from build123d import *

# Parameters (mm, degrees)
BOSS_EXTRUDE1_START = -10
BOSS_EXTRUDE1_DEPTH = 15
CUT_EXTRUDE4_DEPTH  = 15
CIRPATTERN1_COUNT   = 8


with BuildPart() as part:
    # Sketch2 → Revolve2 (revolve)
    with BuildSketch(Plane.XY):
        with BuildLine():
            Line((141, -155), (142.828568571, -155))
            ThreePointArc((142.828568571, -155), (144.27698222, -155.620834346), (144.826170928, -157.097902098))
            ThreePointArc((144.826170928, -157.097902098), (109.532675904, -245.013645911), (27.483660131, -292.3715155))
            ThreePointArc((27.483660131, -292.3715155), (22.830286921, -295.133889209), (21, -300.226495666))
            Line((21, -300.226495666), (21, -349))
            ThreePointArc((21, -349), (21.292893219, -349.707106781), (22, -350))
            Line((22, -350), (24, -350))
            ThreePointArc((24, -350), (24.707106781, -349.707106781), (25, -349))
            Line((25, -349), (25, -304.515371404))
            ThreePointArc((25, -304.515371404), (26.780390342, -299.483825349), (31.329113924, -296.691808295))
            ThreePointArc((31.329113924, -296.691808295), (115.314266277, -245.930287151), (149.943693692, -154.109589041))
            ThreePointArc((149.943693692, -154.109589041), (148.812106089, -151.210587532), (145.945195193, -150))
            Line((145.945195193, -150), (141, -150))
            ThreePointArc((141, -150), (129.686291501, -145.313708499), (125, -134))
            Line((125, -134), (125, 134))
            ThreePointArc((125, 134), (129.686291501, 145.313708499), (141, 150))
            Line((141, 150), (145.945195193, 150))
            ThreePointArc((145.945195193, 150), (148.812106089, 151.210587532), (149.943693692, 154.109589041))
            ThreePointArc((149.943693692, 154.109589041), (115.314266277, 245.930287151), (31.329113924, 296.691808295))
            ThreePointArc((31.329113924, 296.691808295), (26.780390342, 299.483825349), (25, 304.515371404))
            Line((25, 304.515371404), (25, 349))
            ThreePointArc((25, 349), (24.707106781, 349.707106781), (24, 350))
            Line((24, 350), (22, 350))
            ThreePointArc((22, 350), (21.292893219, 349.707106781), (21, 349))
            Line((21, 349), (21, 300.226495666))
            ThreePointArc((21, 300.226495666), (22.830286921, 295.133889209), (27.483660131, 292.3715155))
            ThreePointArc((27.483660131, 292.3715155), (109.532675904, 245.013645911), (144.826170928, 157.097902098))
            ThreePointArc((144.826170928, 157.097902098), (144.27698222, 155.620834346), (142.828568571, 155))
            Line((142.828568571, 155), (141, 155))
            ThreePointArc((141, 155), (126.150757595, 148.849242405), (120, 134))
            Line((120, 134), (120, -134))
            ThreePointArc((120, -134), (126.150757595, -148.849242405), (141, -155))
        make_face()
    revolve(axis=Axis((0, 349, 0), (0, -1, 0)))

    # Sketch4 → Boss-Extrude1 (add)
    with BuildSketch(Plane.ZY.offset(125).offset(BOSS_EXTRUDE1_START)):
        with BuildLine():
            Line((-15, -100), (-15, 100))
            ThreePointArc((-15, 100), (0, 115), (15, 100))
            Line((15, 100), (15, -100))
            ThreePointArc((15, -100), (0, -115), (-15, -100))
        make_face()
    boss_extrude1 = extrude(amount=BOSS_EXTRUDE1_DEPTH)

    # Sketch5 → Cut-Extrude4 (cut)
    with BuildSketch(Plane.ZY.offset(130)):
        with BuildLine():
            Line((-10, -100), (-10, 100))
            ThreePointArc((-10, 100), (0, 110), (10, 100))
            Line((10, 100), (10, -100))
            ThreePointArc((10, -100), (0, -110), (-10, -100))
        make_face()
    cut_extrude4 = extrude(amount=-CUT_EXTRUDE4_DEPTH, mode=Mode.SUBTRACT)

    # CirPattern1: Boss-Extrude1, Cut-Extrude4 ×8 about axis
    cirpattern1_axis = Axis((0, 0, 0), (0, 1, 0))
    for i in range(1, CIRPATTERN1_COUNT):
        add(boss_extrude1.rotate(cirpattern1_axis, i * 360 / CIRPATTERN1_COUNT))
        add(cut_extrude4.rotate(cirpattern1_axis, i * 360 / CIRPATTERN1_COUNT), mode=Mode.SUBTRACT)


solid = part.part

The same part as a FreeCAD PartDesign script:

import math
import FreeCAD as App
import Part
import Sketcher
from FreeCAD import Vector

doc = App.newDocument("Part")
body = doc.addObject("PartDesign::Body", "Body")

# Sketch on XY plane
sketch1 = doc.addObject("Sketcher::SketchObject", "Sketch")
body.addObject(sketch1)
sketch1.AttachmentSupport = (doc.XY_Plane, [""])
sketch1.MapMode = "FlatFace"
sketch1.addGeometry([
    Part.LineSegment(Vector(141, -155, 0), Vector(142.8, -155, 0)),  # 0
    Part.ArcOfCircle(Part.Circle(Vector(142.8, -157, 0), Vector(0, 0, 1), 2), math.radians(-3), math.radians(90)),  # 1
    Part.ArcOfCircle(Part.Circle(Vector(0, -150, 0), Vector(0, 0, 1), 145), math.radians(-79), math.radians(-3)),  # 2
    Part.ArcOfCircle(Part.Circle(Vector(29, -300.2, 0), Vector(0, 0, 1), 8), math.radians(101), math.radians(180)),  # 3
    Part.LineSegment(Vector(21, -300.2, 0), Vector(21, -349, 0)),  # 4
    Part.ArcOfCircle(Part.Circle(Vector(22, -349, 0), Vector(0, 0, 1), 1), math.radians(-180), math.radians(-90)),  # 5
    Part.LineSegment(Vector(22, -350, 0), Vector(24, -350, 0)),  # 6
    Part.ArcOfCircle(Part.Circle(Vector(24, -349, 0), Vector(0, 0, 1), 1), math.radians(-90), math.radians(0)),  # 7
    Part.LineSegment(Vector(25, -349, 0), Vector(25, -304.5, 0)),  # 8
    Part.ArcOfCircle(Part.Circle(Vector(33, -304.5, 0), Vector(0, 0, 1), 8), math.radians(102), math.radians(180)),  # 9
    Part.ArcOfCircle(Part.Circle(Vector(0, -150, 0), Vector(0, 0, 1), 150), math.radians(-78), math.radians(-2)),  # 10
    Part.ArcOfCircle(Part.Circle(Vector(145.9, -154, 0), Vector(0, 0, 1), 4), math.radians(-2), math.radians(90)),  # 11
    Part.LineSegment(Vector(145.9, -150, 0), Vector(141, -150, 0)),  # 12
    Part.ArcOfCircle(Part.Circle(Vector(141, -134, 0), Vector(0, 0, 1), 16), math.radians(180), math.radians(270)),  # 13
    Part.LineSegment(Vector(125, -134, 0), Vector(125, 134, 0)),  # 14
    Part.ArcOfCircle(Part.Circle(Vector(141, 134, 0), Vector(0, 0, 1), 16), math.radians(90), math.radians(180)),  # 15
    Part.LineSegment(Vector(141, 150, 0), Vector(145.9, 150, 0)),  # 16
    Part.ArcOfCircle(Part.Circle(Vector(145.9, 154, 0), Vector(0, 0, 1), 4), math.radians(-90), math.radians(2)),  # 17
    Part.ArcOfCircle(Part.Circle(Vector(0, 150, 0), Vector(0, 0, 1), 150), math.radians(2), math.radians(78)),  # 18
    Part.ArcOfCircle(Part.Circle(Vector(33, 304.5, 0), Vector(0, 0, 1), 8), math.radians(180), math.radians(258)),  # 19
    Part.LineSegment(Vector(25, 304.5, 0), Vector(25, 349, 0)),  # 20
    Part.ArcOfCircle(Part.Circle(Vector(24, 349, 0), Vector(0, 0, 1), 1), math.radians(0), math.radians(90)),  # 21
    Part.LineSegment(Vector(24, 350, 0), Vector(22, 350, 0)),  # 22
    Part.ArcOfCircle(Part.Circle(Vector(22, 349, 0), Vector(0, 0, 1), 1), math.radians(90), math.radians(180)),  # 23
    Part.LineSegment(Vector(21, 349, 0), Vector(21, 300.2, 0)),  # 24
    Part.ArcOfCircle(Part.Circle(Vector(29, 300.2, 0), Vector(0, 0, 1), 8), math.radians(180), math.radians(259)),  # 25
    Part.ArcOfCircle(Part.Circle(Vector(0, 150, 0), Vector(0, 0, 1), 145), math.radians(3), math.radians(79)),  # 26
    Part.ArcOfCircle(Part.Circle(Vector(142.8, 157, 0), Vector(0, 0, 1), 2), math.radians(-90), math.radians(3)),  # 27
    Part.LineSegment(Vector(142.8, 155, 0), Vector(141, 155, 0)),  # 28
    Part.ArcOfCircle(Part.Circle(Vector(141, 134, 0), Vector(0, 0, 1), 21), math.radians(90), math.radians(180)),  # 29
    Part.LineSegment(Vector(120, 134, 0), Vector(120, -134, 0)),  # 30
    Part.ArcOfCircle(Part.Circle(Vector(141, -134, 0), Vector(0, 0, 1), 21), math.radians(180), math.radians(270)),  # 31
], False)
sketch1.addConstraint([
    Sketcher.Constraint("Tangent", 0, 2, 1, 2),
    Sketcher.Constraint("Tangent", 1, 1, 2, 2),
    Sketcher.Constraint("Tangent", 2, 1, 3, 1),
    Sketcher.Constraint("Tangent", 3, 2, 4, 1),
    Sketcher.Constraint("Tangent", 4, 2, 5, 1),
    Sketcher.Constraint("Tangent", 5, 2, 6, 1),
    Sketcher.Constraint("Tangent", 6, 2, 7, 1),
    Sketcher.Constraint("Tangent", 7, 2, 8, 1),
    Sketcher.Constraint("Tangent", 8, 2, 9, 2),
    Sketcher.Constraint("Tangent", 9, 1, 10, 1),
    Sketcher.Constraint("Tangent", 10, 2, 11, 1),
    Sketcher.Constraint("Tangent", 11, 2, 12, 1),
    Sketcher.Constraint("Tangent", 12, 2, 13, 2),
    Sketcher.Constraint("Tangent", 13, 1, 14, 1),
    Sketcher.Constraint("Tangent", 14, 2, 15, 2),
    Sketcher.Constraint("Tangent", 15, 1, 16, 1),
    Sketcher.Constraint("Tangent", 16, 2, 17, 1),
    Sketcher.Constraint("Tangent", 17, 2, 18, 1),
    Sketcher.Constraint("Tangent", 18, 2, 19, 2),
    Sketcher.Constraint("Tangent", 19, 1, 20, 1),
    Sketcher.Constraint("Tangent", 20, 2, 21, 1),
    Sketcher.Constraint("Tangent", 21, 2, 22, 1),
    Sketcher.Constraint("Tangent", 22, 2, 23, 1),
    Sketcher.Constraint("Tangent", 23, 2, 24, 1),
    Sketcher.Constraint("Tangent", 24, 2, 25, 1),
    Sketcher.Constraint("Tangent", 25, 2, 26, 2),
    Sketcher.Constraint("Tangent", 26, 1, 27, 2),
    Sketcher.Constraint("Tangent", 27, 1, 28, 1),
    Sketcher.Constraint("Tangent", 28, 2, 29, 1),
    Sketcher.Constraint("Tangent", 29, 2, 30, 1),
    Sketcher.Constraint("Tangent", 30, 2, 31, 1),
    Sketcher.Constraint("Tangent", 31, 2, 0, 1),
    Sketcher.Constraint("Horizontal", 0),
    Sketcher.Constraint("Vertical", 4),
    Sketcher.Constraint("Horizontal", 6),
    Sketcher.Constraint("Vertical", 8),
    Sketcher.Constraint("Horizontal", 12),
    Sketcher.Constraint("Vertical", 14),
    Sketcher.Constraint("Horizontal", 16),
    Sketcher.Constraint("Vertical", 20),
    Sketcher.Constraint("Horizontal", 22),
    Sketcher.Constraint("Vertical", 24),
    Sketcher.Constraint("Horizontal", 28),
    Sketcher.Constraint("Vertical", 30),
    Sketcher.Constraint("Coincident", 10, 3, 2, 3),
    Sketcher.Constraint("Coincident", 26, 3, 18, 3),
    Sketcher.Constraint("Coincident", 29, 3, 15, 3),
    Sketcher.Constraint("Coincident", 31, 3, 13, 3),
    Sketcher.Constraint("Equal", 5, 7),
    Sketcher.Constraint("Equal", 3, 9),
    Sketcher.Constraint("Equal", 13, 15),
    Sketcher.Constraint("Equal", 11, 17),
    Sketcher.Constraint("Equal", 10, 18),
    Sketcher.Constraint("Equal", 9, 19),
    Sketcher.Constraint("Equal", 7, 21),
    Sketcher.Constraint("Equal", 21, 23),
    Sketcher.Constraint("Equal", 19, 25),
    Sketcher.Constraint("Equal", 2, 26),
    Sketcher.Constraint("Equal", 1, 27),
    Sketcher.Constraint("Symmetric", 2, 3, 18, 3, -1, 1),
    Sketcher.Constraint("Symmetric", 11, 3, 17, 3, -1),
    Sketcher.Constraint("Symmetric", 7, 3, 21, 3, -1),
    Sketcher.Constraint("Horizontal", 10, 3, 11, 2),
    Sketcher.Constraint("Vertical", 5, 3, 23, 3),
    Sketcher.Constraint("Radius", 1, 2.0),
    Sketcher.Constraint("Radius", 2, 145.0),
    Sketcher.Constraint("Radius", 3, 8.0),
    Sketcher.Constraint("Radius", 5, 1.0),
    Sketcher.Constraint("Radius", 10, 150.0),
    Sketcher.Constraint("Radius", 11, 4.0),
    Sketcher.Constraint("Radius", 13, 16.0),
    Sketcher.Constraint("Radius", 29, 21.0),
    Sketcher.Constraint("DistanceX", 6, 1, 6, 2, 2.0),
    Sketcher.Constraint("DistanceY", 14, 1, 14, 2, 268.0),
    Sketcher.Constraint("DistanceX", -1, 1, 3, 3, 29.0),
    Sketcher.Constraint("DistanceY", 5, 3, -1, 1, 349.0),
    Sketcher.Constraint("DistanceX", -1, 1, 13, 3, 141.0),
])
revolution = doc.addObject("PartDesign::Revolution", "Revolution")
body.addObject(revolution)
revolution.Profile = sketch1
revolution.ReferenceAxis = (sketch1, ["V_Axis"])
revolution.Angle = 360

# Sketch on YZ plane
sketch2 = doc.addObject("Sketcher::SketchObject", "Sketch001")
body.addObject(sketch2)
sketch2.AttachmentSupport = (doc.YZ_Plane, [""])
sketch2.MapMode = "FlatFace"
sketch2.AttachmentOffset = App.Placement(Vector(0, 0, -115), App.Rotation())
sketch2.addGeometry([
    Part.LineSegment(Vector(100, -15, 0), Vector(-100, -15, 0)),
    Part.ArcOfCircle(Part.Circle(Vector(-100, 0, 0), Vector(0, 0, 1), 15), math.radians(90), math.radians(270)),
    Part.LineSegment(Vector(-100, 15, 0), Vector(100, 15, 0)),
    Part.ArcOfCircle(Part.Circle(Vector(100, 0, 0), Vector(0, 0, 1), 15), math.radians(-90), math.radians(90)),
], False)
sketch2.addConstraint([
    Sketcher.Constraint("Tangent", 0, 2, 1, 2),
    Sketcher.Constraint("Tangent", 1, 1, 2, 1),
    Sketcher.Constraint("Tangent", 2, 2, 3, 2),
    Sketcher.Constraint("Tangent", 3, 1, 0, 1),
    Sketcher.Constraint("Horizontal", 0),
    Sketcher.Constraint("Horizontal", 2),
    Sketcher.Constraint("Symmetric", 1, 3, 3, 3, -1, 1),
    Sketcher.Constraint("Radius", 1, 15.0),
    Sketcher.Constraint("DistanceX", 0, 2, 0, 1, 200.0),
])
pad1 = doc.addObject("PartDesign::Pad", "Pad")
body.addObject(pad1)
pad1.Profile = sketch2
pad1.Length = 15
pad1.Reversed = True

# Sketch on YZ plane
sketch3 = doc.addObject("Sketcher::SketchObject", "Sketch002")
body.addObject(sketch3)
sketch3.AttachmentSupport = (doc.YZ_Plane, [""])
sketch3.MapMode = "FlatFace"
sketch3.AttachmentOffset = App.Placement(Vector(0, 0, -130), App.Rotation())
sketch3.addGeometry([
    Part.LineSegment(Vector(100, -10, 0), Vector(-100, -10, 0)),
    Part.ArcOfCircle(Part.Circle(Vector(-100, 0, 0), Vector(0, 0, 1), 10), math.radians(90), math.radians(270)),
    Part.LineSegment(Vector(-100, 10, 0), Vector(100, 10, 0)),
    Part.ArcOfCircle(Part.Circle(Vector(100, 0, 0), Vector(0, 0, 1), 10), math.radians(-90), math.radians(90)),
], False)
sketch3.addConstraint([
    Sketcher.Constraint("Tangent", 0, 2, 1, 2),
    Sketcher.Constraint("Tangent", 1, 1, 2, 1),
    Sketcher.Constraint("Tangent", 2, 2, 3, 2),
    Sketcher.Constraint("Tangent", 3, 1, 0, 1),
    Sketcher.Constraint("Horizontal", 0),
    Sketcher.Constraint("Horizontal", 2),
    Sketcher.Constraint("Symmetric", 1, 3, 3, 3, -1, 1),
    Sketcher.Constraint("Radius", 1, 10.0),
    Sketcher.Constraint("DistanceX", 0, 2, 0, 1, 200.0),
])
pocket1 = doc.addObject("PartDesign::Pocket", "Pocket")
body.addObject(pocket1)
pocket1.Profile = sketch3
pocket1.Length = 15
pocket1.Reversed = True
doc.recompute()

polarpattern = doc.addObject("PartDesign::PolarPattern", "PolarPattern")
body.addObject(polarpattern)
polarpattern.Originals = [pad1, pocket1]
polarpattern.Axis = (doc.Y_Axis, [""])
polarpattern.Angle = 360
polarpattern.Occurrences = 8
body.Tip = polarpattern

doc.recompute()
